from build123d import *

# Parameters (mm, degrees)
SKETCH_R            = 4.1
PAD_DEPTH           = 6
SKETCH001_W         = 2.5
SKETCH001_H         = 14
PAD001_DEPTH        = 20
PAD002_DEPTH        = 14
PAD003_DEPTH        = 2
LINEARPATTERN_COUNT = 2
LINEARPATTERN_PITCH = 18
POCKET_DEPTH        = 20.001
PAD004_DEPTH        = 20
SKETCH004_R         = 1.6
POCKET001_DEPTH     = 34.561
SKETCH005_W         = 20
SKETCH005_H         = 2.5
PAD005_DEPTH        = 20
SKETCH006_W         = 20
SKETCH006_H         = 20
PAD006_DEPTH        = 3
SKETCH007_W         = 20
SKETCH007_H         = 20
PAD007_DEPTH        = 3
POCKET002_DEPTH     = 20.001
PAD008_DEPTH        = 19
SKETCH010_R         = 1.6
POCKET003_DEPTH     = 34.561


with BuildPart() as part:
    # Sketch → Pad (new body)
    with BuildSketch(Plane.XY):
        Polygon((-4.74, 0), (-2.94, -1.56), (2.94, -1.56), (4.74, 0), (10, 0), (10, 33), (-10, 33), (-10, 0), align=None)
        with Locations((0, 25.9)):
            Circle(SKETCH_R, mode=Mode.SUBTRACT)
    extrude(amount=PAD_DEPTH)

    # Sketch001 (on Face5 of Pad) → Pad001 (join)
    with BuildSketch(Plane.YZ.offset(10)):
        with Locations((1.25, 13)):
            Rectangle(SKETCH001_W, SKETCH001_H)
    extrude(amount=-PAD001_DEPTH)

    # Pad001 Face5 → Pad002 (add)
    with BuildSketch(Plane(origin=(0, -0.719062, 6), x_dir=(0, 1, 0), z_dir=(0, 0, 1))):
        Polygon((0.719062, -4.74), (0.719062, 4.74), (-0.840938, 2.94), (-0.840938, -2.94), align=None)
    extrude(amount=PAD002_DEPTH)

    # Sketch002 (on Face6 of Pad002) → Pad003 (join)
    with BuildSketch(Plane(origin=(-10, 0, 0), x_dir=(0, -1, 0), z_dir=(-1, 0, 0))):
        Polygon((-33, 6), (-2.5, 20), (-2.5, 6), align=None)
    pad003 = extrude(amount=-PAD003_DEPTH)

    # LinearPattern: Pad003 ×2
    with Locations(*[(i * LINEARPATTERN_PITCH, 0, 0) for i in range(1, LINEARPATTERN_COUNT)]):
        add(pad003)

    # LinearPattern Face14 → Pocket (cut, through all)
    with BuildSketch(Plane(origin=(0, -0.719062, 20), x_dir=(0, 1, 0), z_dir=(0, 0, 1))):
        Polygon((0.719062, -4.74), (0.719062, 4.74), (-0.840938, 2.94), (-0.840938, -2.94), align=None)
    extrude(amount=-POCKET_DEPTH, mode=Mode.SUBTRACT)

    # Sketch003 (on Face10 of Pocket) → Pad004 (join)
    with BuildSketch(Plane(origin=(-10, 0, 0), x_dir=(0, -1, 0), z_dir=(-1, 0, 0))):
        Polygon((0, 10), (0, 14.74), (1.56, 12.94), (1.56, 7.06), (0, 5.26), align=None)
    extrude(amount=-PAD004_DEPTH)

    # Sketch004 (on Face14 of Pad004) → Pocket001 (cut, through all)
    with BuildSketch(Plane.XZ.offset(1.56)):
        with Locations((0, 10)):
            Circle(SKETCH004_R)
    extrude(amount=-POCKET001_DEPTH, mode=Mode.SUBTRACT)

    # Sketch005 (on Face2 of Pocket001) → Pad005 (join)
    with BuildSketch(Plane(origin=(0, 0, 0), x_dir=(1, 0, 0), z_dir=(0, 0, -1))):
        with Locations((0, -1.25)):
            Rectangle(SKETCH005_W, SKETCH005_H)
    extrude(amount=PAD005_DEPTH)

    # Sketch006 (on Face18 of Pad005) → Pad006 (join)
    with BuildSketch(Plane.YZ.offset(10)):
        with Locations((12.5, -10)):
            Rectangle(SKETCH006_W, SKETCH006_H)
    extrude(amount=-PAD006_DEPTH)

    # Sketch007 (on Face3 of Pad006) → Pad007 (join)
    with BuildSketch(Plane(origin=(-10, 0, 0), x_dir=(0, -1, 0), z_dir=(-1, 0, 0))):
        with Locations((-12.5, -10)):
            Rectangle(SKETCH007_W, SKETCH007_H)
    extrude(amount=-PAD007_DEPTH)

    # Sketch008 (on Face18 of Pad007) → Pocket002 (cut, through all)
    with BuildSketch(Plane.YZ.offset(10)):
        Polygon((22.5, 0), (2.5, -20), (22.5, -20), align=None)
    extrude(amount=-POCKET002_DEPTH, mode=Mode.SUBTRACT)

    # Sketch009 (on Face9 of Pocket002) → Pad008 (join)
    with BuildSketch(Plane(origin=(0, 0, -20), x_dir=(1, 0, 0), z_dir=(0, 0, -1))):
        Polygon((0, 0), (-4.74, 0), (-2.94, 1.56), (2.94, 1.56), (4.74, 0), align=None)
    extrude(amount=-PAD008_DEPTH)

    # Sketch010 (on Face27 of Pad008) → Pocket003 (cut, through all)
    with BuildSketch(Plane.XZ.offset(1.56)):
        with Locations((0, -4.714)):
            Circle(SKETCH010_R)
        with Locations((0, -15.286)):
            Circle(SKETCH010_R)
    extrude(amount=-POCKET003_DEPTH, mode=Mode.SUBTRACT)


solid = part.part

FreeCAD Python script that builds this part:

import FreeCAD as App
import Part
import Sketcher
from FreeCAD import Vector

doc = App.newDocument("Part")
params = doc.addObject("Spreadsheet::Sheet", "Params")
for row, (alias, value) in enumerate([
    ("sketch1_diameter", "8.2 mm"),
    ("sketch1_width", "20 mm"),
    ("sketch1_height", "33 mm"),
    ("sketch1_width2", "5.88 mm"),
    ("sketch1_width3", "5.26 mm"),
    ("pad1_length", "6 mm"),
    ("sketch2_height", "14 mm"),
    ("sketch2_width", "2.5 mm"),
    ("pad2_length", "20 mm"),
    ("sketch3_width", "9.48 mm"),
    ("sketch3_width2", "5.88 mm"),
    ("pad3_length", "14 mm"),
    ("sketch4_height", "14 mm"),
    ("sketch4_width", "30.5 mm"),
    ("pad4_length", "2 mm"),
    ("linearpattern_pitch", "18 mm"),
    ("sketch5_width", "9.48 mm"),
    ("sketch5_width2", "5.88 mm"),
    ("sketch6_height", "9.48 mm"),
    ("sketch6_height2", "5.88 mm"),
    ("pad5_length", "20 mm"),
    ("sketch7_diameter", "3.2 mm"),
    ("sketch8_width", "20 mm"),
    ("sketch8_height", "2.5 mm"),
    ("pad6_length", "20 mm"),
    ("sketch9_width", "20 mm"),
    ("pad7_length", "3 mm"),
    ("sketch10_width", "20 mm"),
    ("pad8_length", "3 mm"),
    ("sketch11_width", "20 mm"),
    ("sketch12_width", "9.48 mm"),
    ("sketch12_width2", "5.88 mm"),
    ("pad9_length", "19 mm"),
    ("sketch13_diameter", "3.2 mm"),
], start=1):
    params.set(f"A{row}", alias)
    params.set(f"B{row}", "=" + value)
    params.setAlias(f"B{row}", alias)

body = doc.addObject("PartDesign::Body", "Body")

# Sketch on XY plane
sketch1 = body.newObject("Sketcher::SketchObject", "Sketch")
sketch1.AttachmentSupport = (doc.getObject("XY_Plane"), [""])
sketch1.MapMode = "FlatFace"
sketch1.addGeometry(Part.LineSegment(Vector(-4.7, 0, 0), Vector(-2.9, -1.6, 0)), False)
sketch1.addGeometry(Part.LineSegment(Vector(-2.9, -1.6, 0), Vector(2.9, -1.6, 0)), False)
sketch1.addGeometry(Part.LineSegment(Vector(2.9, -1.6, 0), Vector(4.7, 0, 0)), False)
sketch1.addGeometry(Part.LineSegment(Vector(4.7, 0, 0), Vector(10, 0, 0)), False)
sketch1.addGeometry(Part.LineSegment(Vector(10, 0, 0), Vector(10, 33, 0)), False)
sketch1.addGeometry(Part.LineSegment(Vector(10, 33, 0), Vector(-10, 33, 0)), False)
sketch1.addGeometry(Part.LineSegment(Vector(-10, 33, 0), Vector(-10, 0, 0)), False)
sketch1.addGeometry(Part.LineSegment(Vector(-10, 0, 0), Vector(-4.7, 0, 0)), False)
sketch1.addGeometry(Part.Circle(Vector(0, 25.9, 0), Vector(0, 0, 1), 4.1), False)
sketch1.addConstraint(Sketcher.Constraint("Coincident", 0, 2, 1, 1))
sketch1.addConstraint(Sketcher.Constraint("Coincident", 1, 2, 2, 1))
sketch1.addConstraint(Sketcher.Constraint("Coincident", 2, 2, 3, 1))
sketch1.addConstraint(Sketcher.Constraint("Coincident", 3, 2, 4, 1))
sketch1.addConstraint(Sketcher.Constraint("Coincident", 4, 2, 5, 1))
sketch1.addConstraint(Sketcher.Constraint("Coincident", 5, 2, 6, 1))
sketch1.addConstraint(Sketcher.Constraint("Coincident", 6, 2, 7, 1))
sketch1.addConstraint(Sketcher.Constraint("Coincident", 7, 2, 0, 1))
sketch1.addConstraint(Sketcher.Constraint("Horizontal", 1))
sketch1.addConstraint(Sketcher.Constraint("Horizontal", 3))
sketch1.addConstraint(Sketcher.Constraint("Vertical", 4))
sketch1.addConstraint(Sketcher.Constraint("Horizontal", 5))
sketch1.addConstraint(Sketcher.Constraint("Vertical", 6))
sketch1.addConstraint(Sketcher.Constraint("Horizontal", 7))
sketch1.addConstraint(Sketcher.Constraint("Symmetric", 3, 2, 6, 2, -1, 1))
sketch1.addConstraint(Sketcher.Constraint("Symmetric", 2, 2, 7, 2, -2))
sketch1.addConstraint(Sketcher.Constraint("PointOnObject", 8, 3, -2))
sketch1.addConstraint(Sketcher.Constraint("Equal", 0, 2))
sketch1.addConstraint(Sketcher.Constraint("Diameter", 8, 8.2))
sketch1.addConstraint(Sketcher.Constraint("DistanceX", 5, 2, 5, 1, 20.0))
sketch1.addConstraint(Sketcher.Constraint("DistanceY", 4, 1, 4, 2, 33.0))
sketch1.addConstraint(Sketcher.Constraint("DistanceX", 1, 1, 1, 2, 5.88))
sketch1.addConstraint(Sketcher.Constraint("DistanceX", 3, 1, 3, 2, 5.26))
sketch1.addConstraint(Sketcher.Constraint("DistanceY", -1, 1, 8, 3, 25.9))
sketch1.addConstraint(Sketcher.Constraint("DistanceY", 0, 2, -1, 1, 1.56))
sketch1.setExpression("Constraints[18]", "Params.sketch1_diameter")
sketch1.setExpression("Constraints[19]", "Params.sketch1_width")
sketch1.setExpression("Constraints[20]", "Params.sketch1_height")
sketch1.setExpression("Constraints[21]", "Params.sketch1_width2")
sketch1.setExpression("Constraints[22]", "Params.sketch1_width3")
pad1 = body.newObject("PartDesign::Pad", "Pad")
pad1.Profile = sketch1
pad1.setExpression("Length", "Params.pad1_length")

# Sketch on YZ plane
sketch2 = body.newObject("Sketcher::SketchObject", "Sketch001")
sketch2.AttachmentSupport = (doc.getObject("YZ_Plane"), [""])
sketch2.MapMode = "FlatFace"
sketch2.AttachmentOffset = App.Placement(Vector(0, 0, 10), App.Rotation())
sketch2.addGeometry(Part.LineSegment(Vector(0, 20, 0), Vector(0, 6, 0)), False)
sketch2.addGeometry(Part.LineSegment(Vector(0, 6, 0), Vector(2.5, 6, 0)), False)
sketch2.addGeometry(Part.LineSegment(Vector(2.5, 6, 0), Vector(2.5, 20, 0)), False)
sketch2.addGeometry(Part.LineSegment(Vector(2.5, 20, 0), Vector(0, 20, 0)), False)
sketch2.addConstraint(Sketcher.Constraint("Coincident", 0, 2, 1, 1))
sketch2.addConstraint(Sketcher.Constraint("Coincident", 1, 2, 2, 1))
sketch2.addConstraint(Sketcher.Constraint("Coincident", 2, 2, 3, 1))
sketch2.addConstraint(Sketcher.Constraint("Coincident", 3, 2, 0, 1))
sketch2.addConstraint(Sketcher.Constraint("Vertical", 0))
sketch2.addConstraint(Sketcher.Constraint("Horizontal", 1))
sketch2.addConstraint(Sketcher.Constraint("Vertical", 2))
sketch2.addConstraint(Sketcher.Constraint("Horizontal", 3))
sketch2.addConstraint(Sketcher.Constraint("PointOnObject", 0, 2, -2))
sketch2.addConstraint(Sketcher.Constraint("DistanceY", 0, 2, 0, 1, 14.0))
sketch2.addConstraint(Sketcher.Constraint("DistanceX", 1, 1, 1, 2, 2.5))
sketch2.addConstraint(Sketcher.Constraint("DistanceY", -1, 1, 0, 2, 6.0))
sketch2.setExpression("Constraints[9]", "Params.sketch2_height")
sketch2.setExpression("Constraints[10]", "Params.sketch2_width")
pad2 = body.newObject("PartDesign::Pad", "Pad001")
pad2.Profile = sketch2
pad2.setExpression("Length", "Params.pad2_length")
pad2.Reversed = True

# Sketch on XY plane
sketch3 = body.newObject("Sketcher::SketchObject", "Sketch002")
sketch3.AttachmentSupport = (doc.getObject("XY_Plane"), [""])
sketch3.MapMode = "FlatFace"
sketch3.AttachmentOffset = App.Placement(Vector(0, 0, 6), App.Rotation())
sketch3.addGeometry(Part.LineSegment(Vector(4.7, 0, 0), Vector(-4.7, 0, 0)), False)
sketch3.addGeometry(Part.LineSegment(Vector(-4.7, 0, 0), Vector(-2.9, -1.6, 0)), False)
sketch3.addGeometry(Part.LineSegment(Vector(-2.9, -1.6, 0), Vector(2.9, -1.6, 0)), False)
sketch3.addGeometry(Part.LineSegment(Vector(2.9, -1.6, 0), Vector(4.7, 0, 0)), False)
sketch3.addConstraint(Sketcher.Constraint("Coincident", 0, 2, 1, 1))
sketch3.addConstraint(Sketcher.Constraint("Coincident", 1, 2, 2, 1))
sketch3.addConstraint(Sketcher.Constraint("Coincident", 2, 2, 3, 1))
sketch3.addConstraint(Sketcher.Constraint("Coincident", 3, 2, 0, 1))
sketch3.addConstraint(Sketcher.Constraint("Horizontal", 0))
sketch3.addConstraint(Sketcher.Constraint("Horizontal", 2))
sketch3.addConstraint(Sketcher.Constraint("Symmetric", 0, 2, 3, 2, -1, 1))
sketch3.addConstraint(Sketcher.Constraint("Equal", 1, 3))
sketch3.addConstraint(Sketcher.Constraint("DistanceX", 0, 2, 0, 1, 9.48))
sketch3.addConstraint(Sketcher.Constraint("DistanceX", 2, 1, 2, 2, 5.88))
sketch3.addConstraint(Sketcher.Constraint("DistanceY", 1, 2, -1, 1, 1.56))
sketch3.setExpression("Constraints[8]", "Params.sketch3_width")
sketch3.setExpression("Constraints[9]", "Params.sketch3_width2")
pad3 = body.newObject("PartDesign::Pad", "Pad002")
pad3.Profile = sketch3
pad3.setExpression("Length", "Params.pad3_length")

# Sketch on YZ plane
sketch4 = body.newObject("Sketcher::SketchObject", "Sketch003")
sketch4.AttachmentSupport = (doc.getObject("YZ_Plane"), [""])
sketch4.MapMode = "FlatFace"
sketch4.AttachmentOffset = App.Placement(Vector(0, 0, -10), App.Rotation())
sketch4.addGeometry(Part.LineSegment(Vector(2, 20, 0), Vector(33, 6, 0)), False)
sketch4.addGeometry(Part.LineSegment(Vector(33, 6, 0), Vector(2, 6, 0)), False)
sketch4.addGeometry(Part.LineSegment(Vector(2, 6, 0), Vector(2, 20, 0)), False)
sketch4.addConstraint(Sketcher.Constraint("Coincident", 0, 2, 1, 1))
sketch4.addConstraint(Sketcher.Constraint("Coincident", 1, 2, 2, 1))
sketch4.addConstraint(Sketcher.Constraint("Coincident", 2, 2, 0, 1))
sketch4.addConstraint(Sketcher.Constraint("Horizontal", 1))
sketch4.addConstraint(Sketcher.Constraint("Vertical", 2))
sketch4.addConstraint(Sketcher.Constraint("DistanceY", 2, 1, 2, 2, 14.0))
sketch4.addConstraint(Sketcher.Constraint("DistanceX", 1, 2, 1, 1, 30.5))
sketch4.addConstraint(Sketcher.Constraint("DistanceX", -1, 1, 0, 2, 33.0))
sketch4.addConstraint(Sketcher.Constraint("DistanceY", -1, 1, 0, 2, 6.0))
sketch4.setExpression("Constraints[5]", "Params.sketch4_height")
sketch4.setExpression("Constraints[6]", "Params.sketch4_width")
pad4 = body.newObject("PartDesign::Pad", "Pad003")
pad4.Profile = sketch4
pad4.setExpression("Length", "Params.pad4_length")
doc.recompute()

linearpattern = body.newObject("PartDesign::LinearPattern", "LinearPattern")
linearpattern.Originals = [pad4]
linearpattern.Direction = (doc.getObject("X_Axis"), [""])
linearpattern.Mode = "offset"
linearpattern.setExpression("Offset", "Params.linearpattern_pitch")
linearpattern.Occurrences = 2
body.Tip = linearpattern

# Sketch on XY plane
sketch5 = body.newObject("Sketcher::SketchObject", "Sketch004")
sketch5.AttachmentSupport = (doc.getObject("XY_Plane"), [""])
sketch5.MapMode = "FlatFace"
sketch5.AttachmentOffset = App.Placement(Vector(0, 0, 20), App.Rotation())
sketch5.addGeometry(Part.LineSegment(Vector(4.7, 0, 0), Vector(-4.7, 0, 0)), False)
sketch5.addGeometry(Part.LineSegment(Vector(-4.7, 0, 0), Vector(-2.9, -1.6, 0)), False)
sketch5.addGeometry(Part.LineSegment(Vector(-2.9, -1.6, 0), Vector(2.9, -1.6, 0)), False)
sketch5.addGeometry(Part.LineSegment(Vector(2.9, -1.6, 0), Vector(4.7, 0, 0)), False)
sketch5.addConstraint(Sketcher.Constraint("Coincident", 0, 2, 1, 1))
sketch5.addConstraint(Sketcher.Constraint("Coincident", 1, 2, 2, 1))
sketch5.addConstraint(Sketcher.Constraint("Coincident", 2, 2, 3, 1))
sketch5.addConstraint(Sketcher.Constraint("Coincident", 3, 2, 0, 1))
sketch5.addConstraint(Sketcher.Constraint("Horizontal", 0))
sketch5.addConstraint(Sketcher.Constraint("Horizontal", 2))
sketch5.addConstraint(Sketcher.Constraint("Symmetric", 0, 2, 3, 2, -1, 1))
sketch5.addConstraint(Sketcher.Constraint("Equal", 1, 3))
sketch5.addConstraint(Sketcher.Constraint("DistanceX", 0, 2, 0, 1, 9.48))
sketch5.addConstraint(Sketcher.Constraint("DistanceX", 2, 1, 2, 2, 5.88))
sketch5.addConstraint(Sketcher.Constraint("DistanceY", 1, 2, -1, 1, 1.56))
sketch5.setExpression("Constraints[8]", "Params.sketch5_width")
sketch5.setExpression("Constraints[9]", "Params.sketch5_width2")
pocket1 = body.newObject("PartDesign::Pocket", "Pocket")
pocket1.Profile = sketch5
pocket1.Type = "ThroughAll"

# Sketch on YZ plane
sketch6 = body.newObject("Sketcher::SketchObject", "Sketch005")
sketch6.AttachmentSupport = (doc.getObject("YZ_Plane"), [""])
sketch6.MapMode = "FlatFace"
sketch6.AttachmentOffset = App.Placement(Vector(0, 0, -10), App.Rotation())
sketch6.addGeometry(Part.LineSegment(Vector(0, 14.7, 0), Vector(0, 5.3, 0)), False)
sketch6.addGeometry(Part.LineSegment(Vector(0, 5.3, 0), Vector(-1.6, 7.1, 0)), False)
sketch6.addGeometry(Part.LineSegment(Vector(-1.6, 7.1, 0), Vector(-1.6, 12.9, 0)), False)
sketch6.addGeometry(Part.LineSegment(Vector(-1.6, 12.9, 0), Vector(0, 14.7, 0)), False)
sketch6.addConstraint(Sketcher.Constraint("Coincident", 0, 2, 1, 1))
sketch6.addConstraint(Sketcher.Constraint("Coincident", 1, 2, 2, 1))
sketch6.addConstraint(Sketcher.Constraint("Coincident", 2, 2, 3, 1))
sketch6.addConstraint(Sketcher.Constraint("Coincident", 3, 2, 0, 1))
sketch6.addConstraint(Sketcher.Constraint("Vertical", 0))
sketch6.addConstraint(Sketcher.Constraint("Vertical", 2))
sketch6.addConstraint(Sketcher.Constraint("PointOnObject", 0, 2, -2))
sketch6.addConstraint(Sketcher.Constraint("Equal", 1, 3))
sketch6.addConstraint(Sketcher.Constraint("DistanceY", 0, 2, 0, 1, 9.48))
sketch6.addConstraint(Sketcher.Constraint("DistanceY", 2, 1, 2, 2, 5.88))
sketch6.addConstraint(Sketcher.Constraint("DistanceY", -1, 1, 0, 2, 5.26))
sketch6.addConstraint(Sketcher.Constraint("DistanceX", 1, 2, -1, 1, 1.56))
sketch6.setExpression("Constraints[8]", "Params.sketch6_height")
sketch6.setExpression("Constraints[9]", "Params.sketch6_height2")
pad5 = body.newObject("PartDesign::Pad", "Pad004")
pad5.Profile = sketch6
pad5.setExpression("Length", "Params.pad5_length")

# Sketch on XZ plane
sketch7 = body.newObject("Sketcher::SketchObject", "Sketch006")
sketch7.AttachmentSupport = (doc.getObject("XZ_Plane"), [""])
sketch7.MapMode = "FlatFace"
sketch7.AttachmentOffset = App.Placement(Vector(0, 0, 1.56), App.Rotation())
sketch7.addGeometry(Part.Circle(Vector(0, 10, 0), Vector(0, 0, 1), 1.6), False)
sketch7.addConstraint(Sketcher.Constraint("PointOnObject", 0, 3, -2))
sketch7.addConstraint(Sketcher.Constraint("Diameter", 0, 3.2))
sketch7.addConstraint(Sketcher.Constraint("DistanceY", -1, 1, 0, 3, 10.0))
sketch7.setExpression("Constraints[1]", "Params.sketch7_diameter")
pocket2 = body.newObject("PartDesign::Pocket", "Pocket001")
pocket2.Profile = sketch7
pocket2.Type = "ThroughAll"

# Sketch on XY plane
sketch8 = body.newObject("Sketcher::SketchObject", "Sketch007")
sketch8.AttachmentSupport = (doc.getObject("XY_Plane"), [""])
sketch8.MapMode = "FlatFace"
sketch8.addGeometry(Part.LineSegment(Vector(-10, 0, 0), Vector(-10, 2.5, 0)), False)
sketch8.addGeometry(Part.LineSegment(Vector(-10, 2.5, 0), Vector(10, 2.5, 0)), False)
sketch8.addGeometry(Part.LineSegment(Vector(10, 2.5, 0), Vector(10, 0, 0)), False)
sketch8.addGeometry(Part.LineSegment(Vector(10, 0, 0), Vector(-10, 0, 0)), False)
sketch8.addConstraint(Sketcher.Constraint("Coincident", 0, 2, 1, 1))
sketch8.addConstraint(Sketcher.Constraint("Coincident", 1, 2, 2, 1))
sketch8.addConstraint(Sketcher.Constraint("Coincident", 2, 2, 3, 1))
sketch8.addConstraint(Sketcher.Constraint("Coincident", 3, 2, 0, 1))
sketch8.addConstraint(Sketcher.Constraint("Vertical", 0))
sketch8.addConstraint(Sketcher.Constraint("Horizontal", 1))
sketch8.addConstraint(Sketcher.Constraint("Vertical", 2))
sketch8.addConstraint(Sketcher.Constraint("Horizontal", 3))
sketch8.addConstraint(Sketcher.Constraint("Symmetric", 2, 2, 3, 2, -1, 1))
sketch8.addConstraint(Sketcher.Constraint("DistanceX", 1, 1, 1, 2, 20.0))
sketch8.addConstraint(Sketcher.Constraint("DistanceY", 0, 1, 0, 2, 2.5))
sketch8.setExpression("Constraints[9]", "Params.sketch8_width")
sketch8.setExpression("Constraints[10]", "Params.sketch8_height")
pad6 = body.newObject("PartDesign::Pad", "Pad005")
pad6.Profile = sketch8
pad6.setExpression("Length", "Params.pad6_length")
pad6.Reversed = True

# Sketch on YZ plane
sketch9 = body.newObject("Sketcher::SketchObject", "Sketch008")
sketch9.AttachmentSupport = (doc.getObject("YZ_Plane"), [""])
sketch9.MapMode = "FlatFace"
sketch9.AttachmentOffset = App.Placement(Vector(0, 0, 10), App.Rotation())
sketch9.addGeometry(Part.LineSegment(Vector(2, 0, 0), Vector(2, -20, 0)), False)
sketch9.addGeometry(Part.LineSegment(Vector(2, -20, 0), Vector(22, -20, 0)), False)
sketch9.addGeometry(Part.LineSegment(Vector(22, -20, 0), Vector(22, 0, 0)), False)
sketch9.addGeometry(Part.LineSegment(Vector(22, 0, 0), Vector(2, 0, 0)), False)
sketch9.addConstraint(Sketcher.Constraint("Coincident", 0, 2, 1, 1))
sketch9.addConstraint(Sketcher.Constraint("Coincident", 1, 2, 2, 1))
sketch9.addConstraint(Sketcher.Constraint("Coincident", 2, 2, 3, 1))
sketch9.addConstraint(Sketcher.Constraint("Coincident", 3, 2, 0, 1))
sketch9.addConstraint(Sketcher.Constraint("Vertical", 0))
sketch9.addConstraint(Sketcher.Constraint("Horizontal", 1))
sketch9.addConstraint(Sketcher.Constraint("Vertical", 2))
sketch9.addConstraint(Sketcher.Constraint("Horizontal", 3))
sketch9.addConstraint(Sketcher.Constraint("PointOnObject", 2, 2, -1))
sketch9.addConstraint(Sketcher.Constraint("Equal", 3, 0))
sketch9.addConstraint(Sketcher.Constraint("DistanceX", 1, 1, 1, 2, 20.0))
sketch9.addConstraint(Sketcher.Constraint("DistanceX", -1, 1, 0, 2, 2.5))
sketch9.setExpression("Constraints[10]", "Params.sketch9_width")
pad7 = body.newObject("PartDesign::Pad", "Pad006")
pad7.Profile = sketch9
pad7.setExpression("Length", "Params.pad7_length")
pad7.Reversed = True

# Sketch on YZ plane
sketch10 = body.newObject("Sketcher::SketchObject", "Sketch009")
sketch10.AttachmentSupport = (doc.getObject("YZ_Plane"), [""])
sketch10.MapMode = "FlatFace"
sketch10.AttachmentOffset = App.Placement(Vector(0, 0, -10), App.Rotation())
sketch10.addGeometry(Part.LineSegment(Vector(22, 0, 0), Vector(22, -20, 0)), False)
sketch10.addGeometry(Part.LineSegment(Vector(22, -20, 0), Vector(2, -20, 0)), False)
sketch10.addGeometry(Part.LineSegment(Vector(2, -20, 0), Vector(2, 0, 0)), False)
sketch10.addGeometry(Part.LineSegment(Vector(2, 0, 0), Vector(22, 0, 0)), False)
sketch10.addConstraint(Sketcher.Constraint("Coincident", 0, 2, 1, 1))
sketch10.addConstraint(Sketcher.Constraint("Coincident", 1, 2, 2, 1))
sketch10.addConstraint(Sketcher.Constraint("Coincident", 2, 2, 3, 1))
sketch10.addConstraint(Sketcher.Constraint("Coincident", 3, 2, 0, 1))
sketch10.addConstraint(Sketcher.Constraint("Vertical", 0))
sketch10.addConstraint(Sketcher.Constraint("Horizontal", 1))
sketch10.addConstraint(Sketcher.Constraint("Vertical", 2))
sketch10.addConstraint(Sketcher.Constraint("Horizontal", 3))
sketch10.addConstraint(Sketcher.Constraint("PointOnObject", 2, 2, -1))
sketch10.addConstraint(Sketcher.Constraint("Equal", 3, 0))
sketch10.addConstraint(Sketcher.Constraint("DistanceX", 1, 2, 1, 1, 20.0))
sketch10.addConstraint(Sketcher.Constraint("DistanceX", -1, 1, 0, 2, 22.5))
sketch10.setExpression("Constraints[10]", "Params.sketch10_width")
pad8 = body.newObject("PartDesign::Pad", "Pad007")
pad8.Profile = sketch10
pad8.setExpression("Length", "Params.pad8_length")

# Sketch on YZ plane
sketch11 = body.newObject("Sketcher::SketchObject", "Sketch010")
sketch11.AttachmentSupport = (doc.getObject("YZ_Plane"), [""])
sketch11.MapMode = "FlatFace"
sketch11.AttachmentOffset = App.Placement(Vector(0, 0, 10), App.Rotation())
sketch11.addGeometry(Part.LineSegment(Vector(22, 0, 0), Vector(2, -20, 0)), False)
sketch11.addGeometry(Part.LineSegment(Vector(2, -20, 0), Vector(22, -20, 0)), False)
sketch11.addGeometry(Part.LineSegment(Vector(22, -20, 0), Vector(22, 0, 0)), False)
sketch11.addConstraint(Sketcher.Constraint("Coincident", 0, 2, 1, 1))
sketch11.addConstraint(Sketcher.Constraint("Coincident", 1, 2, 2, 1))
sketch11.addConstraint(Sketcher.Constraint("Coincident", 2, 2, 0, 1))
sketch11.addConstraint(Sketcher.Constraint("Horizontal", 1))
sketch11.addConstraint(Sketcher.Constraint("Vertical", 2))
sketch11.addConstraint(Sketcher.Constraint("PointOnObject", 2, 2, -1))
sketch11.addConstraint(Sketcher.Constraint("Equal", 1, 2))
sketch11.addConstraint(Sketcher.Constraint("DistanceX", 1, 1, 1, 2, 20.0))
sketch11.addConstraint(Sketcher.Constraint("DistanceX", -1, 1, 0, 2, 2.5))
sketch11.setExpression("Constraints[7]", "Params.sketch11_width")
pocket3 = body.newObject("PartDesign::Pocket", "Pocket002")
pocket3.Profile = sketch11
pocket3.Type = "ThroughAll"

# Sketch on XY plane
sketch12 = body.newObject("Sketcher::SketchObject", "Sketch011")
sketch12.AttachmentSupport = (doc.getObject("XY_Plane"), [""])
sketch12.MapMode = "FlatFace"
sketch12.AttachmentOffset = App.Placement(Vector(0, 0, -20), App.Rotation())
sketch12.addGeometry(Part.LineSegment(Vector(-4.7, 0, 0), Vector(4.7, 0, 0)), False)
sketch12.addGeometry(Part.LineSegment(Vector(4.7, 0, 0), Vector(2.9, -1.6, 0)), False)
sketch12.addGeometry(Part.LineSegment(Vector(2.9, -1.6, 0), Vector(-2.9, -1.6, 0)), False)
sketch12.addGeometry(Part.LineSegment(Vector(-2.9, -1.6, 0), Vector(-4.7, 0, 0)), False)
sketch12.addConstraint(Sketcher.Constraint("Coincident", 0, 2, 1, 1))
sketch12.addConstraint(Sketcher.Constraint("Coincident", 1, 2, 2, 1))
sketch12.addConstraint(Sketcher.Constraint("Coincident", 2, 2, 3, 1))
sketch12.addConstraint(Sketcher.Constraint("Coincident", 3, 2, 0, 1))
sketch12.addConstraint(Sketcher.Constraint("Horizontal", 0))
sketch12.addConstraint(Sketcher.Constraint("Horizontal", 2))
sketch12.addConstraint(Sketcher.Constraint("Symmetric", 0, 2, 3, 2, -1, 1))
sketch12.addConstraint(Sketcher.Constraint("Equal", 1, 3))
sketch12.addConstraint(Sketcher.Constraint("DistanceX", 0, 1, 0, 2, 9.48))
sketch12.addConstraint(Sketcher.Constraint("DistanceX", 2, 2, 2, 1, 5.88))
sketch12.addConstraint(Sketcher.Constraint("DistanceY", 1, 2, -1, 1, 1.56))
sketch12.setExpression("Constraints[8]", "Params.sketch12_width")
sketch12.setExpression("Constraints[9]", "Params.sketch12_width2")
pad9 = body.newObject("PartDesign::Pad", "Pad008")
pad9.Profile = sketch12
pad9.setExpression("Length", "Params.pad9_length")

# Sketch on XZ plane
sketch13 = body.newObject("Sketcher::SketchObject", "Sketch012")
sketch13.AttachmentSupport = (doc.getObject("XZ_Plane"), [""])
sketch13.MapMode = "FlatFace"
sketch13.AttachmentOffset = App.Placement(Vector(0, 0, 1.56), App.Rotation())
sketch13.addGeometry(Part.Circle(Vector(0, -4.7, 0), Vector(0, 0, 1), 1.6), False)
sketch13.addGeometry(Part.Circle(Vector(0, -15.3, 0), Vector(0, 0, 1), 1.6), False)
sketch13.addConstraint(Sketcher.Constraint("Equal", 0, 1))
sketch13.addConstraint(Sketcher.Constraint("PointOnObject", 0, 3, -2))
sketch13.addConstraint(Sketcher.Constraint("PointOnObject", 1, 3, -2))
sketch13.addConstraint(Sketcher.Constraint("Diameter", 0, 3.2))
sketch13.addConstraint(Sketcher.Constraint("DistanceY", 0, 3, -1, 1, 4.714))
sketch13.addConstraint(Sketcher.Constraint("DistanceY", 1, 3, -1, 1, 15.286))
sketch13.setExpression("Constraints[3]", "Params.sketch13_diameter")
pocket4 = body.newObject("PartDesign::Pocket", "Pocket003")
pocket4.Profile = sketch13
pocket4.Type = "ThroughAll"

doc.recompute()
